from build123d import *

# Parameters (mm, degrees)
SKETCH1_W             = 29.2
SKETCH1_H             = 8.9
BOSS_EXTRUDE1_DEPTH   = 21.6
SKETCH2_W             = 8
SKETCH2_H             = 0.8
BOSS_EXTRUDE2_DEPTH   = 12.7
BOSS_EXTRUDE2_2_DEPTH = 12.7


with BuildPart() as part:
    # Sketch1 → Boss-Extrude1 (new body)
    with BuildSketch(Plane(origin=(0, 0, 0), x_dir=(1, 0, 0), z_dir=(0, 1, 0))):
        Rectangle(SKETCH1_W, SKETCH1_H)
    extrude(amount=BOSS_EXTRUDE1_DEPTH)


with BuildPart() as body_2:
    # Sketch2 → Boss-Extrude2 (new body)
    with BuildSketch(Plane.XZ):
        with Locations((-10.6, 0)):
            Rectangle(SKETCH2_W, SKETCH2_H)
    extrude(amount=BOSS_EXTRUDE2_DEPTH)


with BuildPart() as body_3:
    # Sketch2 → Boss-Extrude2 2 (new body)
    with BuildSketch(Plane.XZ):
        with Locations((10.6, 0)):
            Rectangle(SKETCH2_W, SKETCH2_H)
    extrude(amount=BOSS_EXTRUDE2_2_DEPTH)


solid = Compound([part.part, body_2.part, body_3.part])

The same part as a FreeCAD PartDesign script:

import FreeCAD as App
import Part
import Sketcher

V = App.Vector


def add_polygon(sketch, points):
    """Adds a closed chain of lines whose ends are joined by coincident constraints."""
    first, n = sketch.GeometryCount, len(points)
    for a, b in zip(points, points[1:] + points[:1]):
        sketch.addGeometry(Part.LineSegment(App.Vector(*a, 0), App.Vector(*b, 0)), False)
    for i in range(n):
        sketch.addConstraint(Sketcher.Constraint("Coincident", first + i, 2, first + (i + 1) % n, 1))

doc = App.newDocument("Part")
params = doc.addObject("Spreadsheet::Sheet", "Params")
for row, (alias, value) in enumerate([
    ("sketch1_width", "29.2 mm"),
    ("sketch1_height", "8.9 mm"),
    ("pad1_length", "21.6 mm"),
    ("sketch2_width", "8 mm"),
    ("sketch2_height", "0.8 mm"),
    ("pad2_length", "12.7 mm"),
    ("sketch3_width", "8 mm"),
    ("sketch3_height", "0.8 mm"),
    ("pad3_length", "12.7 mm"),
], start=1):
    params.set(f"A{row}", alias)
    params.set(f"B{row}", "=" + value)
    params.setAlias(f"B{row}", alias)

body = doc.addObject("PartDesign::Body", "Body")

# Sketch on XZ plane
sketch1 = doc.addObject("Sketcher::SketchObject", "Sketch")
body.addObject(sketch1)
sketch1.AttachmentSupport = (doc.XZ_Plane, [""])
sketch1.MapMode = "FlatFace"
add_polygon(sketch1, [(-15, -4), (-15, 4), (15, 4), (15, -4)])  # lines 0-3
sketch1.addConstraint([
    Sketcher.Constraint("Vertical", 0),
    Sketcher.Constraint("Horizontal", 1),
    Sketcher.Constraint("Vertical", 2),
    Sketcher.Constraint("Horizontal", 3),
    Sketcher.Constraint("Symmetric", 0, 2, 2, 2, -1, 1),
    Sketcher.Constraint("DistanceX", 1, 1, 1, 2, 29.2),
    Sketcher.Constraint("DistanceY", 0, 1, 0, 2, 8.9),
])
sketch1.setExpression("Constraints[9]", "Params.sketch1_width")
sketch1.setExpression("Constraints[10]", "Params.sketch1_height")
pad1 = doc.addObject("PartDesign::Pad", "Pad")
body.addObject(pad1)
pad1.Profile = sketch1
pad1.setExpression("Length", "Params.pad1_length")
pad1.Reversed = True
body2 = doc.addObject("PartDesign::Body", "Body001")

# Sketch on XZ plane
sketch2 = doc.addObject("Sketcher::SketchObject", "Sketch001")
body2.addObject(sketch2)
sketch2.AttachmentSupport = (doc.getObject("XZ_Plane001"), [""])
sketch2.MapMode = "FlatFace"
add_polygon(sketch2, [(-14.6, 0.4), (-14.6, -0.4), (-6.6, -0.4), (-6.6, 0.4)])  # lines 0-3
sketch2.addConstraint([
    Sketcher.Constraint("Vertical", 0),
    Sketcher.Constraint("Horizontal", 1),
    Sketcher.Constraint("Vertical", 2),
    Sketcher.Constraint("Horizontal", 3),
    Sketcher.Constraint("DistanceX", 1, 1, 1, 2, 8.0),
    Sketcher.Constraint("DistanceY", 0, 2, 0, 1, 0.8),
    Sketcher.Constraint("DistanceX", 0, 2, -1, 1, 14.6),
    Sketcher.Constraint("DistanceY", 0, 2, -1, 1, 0.4),
])
sketch2.setExpression("Constraints[8]", "Params.sketch2_width")
sketch2.setExpression("Constraints[9]", "Params.sketch2_height")
pad2 = doc.addObject("PartDesign::Pad", "Pad001")
body2.addObject(pad2)
pad2.Profile = sketch2
pad2.setExpression("Length", "Params.pad2_length")
body3 = doc.addObject("PartDesign::Body", "Body002")

# Sketch on XZ plane
sketch3 = doc.addObject("Sketcher::SketchObject", "Sketch002")
body3.addObject(sketch3)
sketch3.AttachmentSupport = (doc.getObject("XZ_Plane002"), [""])
sketch3.MapMode = "FlatFace"
add_polygon(sketch3, [(6.6, 0.4), (6.6, -0.4), (14.6, -0.4), (14.6, 0.4)])  # lines 0-3
sketch3.addConstraint([
    Sketcher.Constraint("Vertical", 0),
    Sketcher.Constraint("Horizontal", 1),
    Sketcher.Constraint("Vertical", 2),
    Sketcher.Constraint("Horizontal", 3),
    Sketcher.Constraint("DistanceX", 1, 1, 1, 2, 8.0),
    Sketcher.Constraint("DistanceY", 0, 2, 0, 1, 0.8),
    Sketcher.Constraint("DistanceX", -1, 1, 0, 2, 6.6),
    Sketcher.Constraint("DistanceY", 0, 2, -1, 1, 0.4),
])
sketch3.setExpression("Constraints[8]", "Params.sketch3_width")
sketch3.setExpression("Constraints[9]", "Params.sketch3_height")
pad3 = doc.addObject("PartDesign::Pad", "Pad002")
body3.addObject(pad3)
pad3.Profile = sketch3
pad3.setExpression("Length", "Params.pad3_length")

doc.recompute()
